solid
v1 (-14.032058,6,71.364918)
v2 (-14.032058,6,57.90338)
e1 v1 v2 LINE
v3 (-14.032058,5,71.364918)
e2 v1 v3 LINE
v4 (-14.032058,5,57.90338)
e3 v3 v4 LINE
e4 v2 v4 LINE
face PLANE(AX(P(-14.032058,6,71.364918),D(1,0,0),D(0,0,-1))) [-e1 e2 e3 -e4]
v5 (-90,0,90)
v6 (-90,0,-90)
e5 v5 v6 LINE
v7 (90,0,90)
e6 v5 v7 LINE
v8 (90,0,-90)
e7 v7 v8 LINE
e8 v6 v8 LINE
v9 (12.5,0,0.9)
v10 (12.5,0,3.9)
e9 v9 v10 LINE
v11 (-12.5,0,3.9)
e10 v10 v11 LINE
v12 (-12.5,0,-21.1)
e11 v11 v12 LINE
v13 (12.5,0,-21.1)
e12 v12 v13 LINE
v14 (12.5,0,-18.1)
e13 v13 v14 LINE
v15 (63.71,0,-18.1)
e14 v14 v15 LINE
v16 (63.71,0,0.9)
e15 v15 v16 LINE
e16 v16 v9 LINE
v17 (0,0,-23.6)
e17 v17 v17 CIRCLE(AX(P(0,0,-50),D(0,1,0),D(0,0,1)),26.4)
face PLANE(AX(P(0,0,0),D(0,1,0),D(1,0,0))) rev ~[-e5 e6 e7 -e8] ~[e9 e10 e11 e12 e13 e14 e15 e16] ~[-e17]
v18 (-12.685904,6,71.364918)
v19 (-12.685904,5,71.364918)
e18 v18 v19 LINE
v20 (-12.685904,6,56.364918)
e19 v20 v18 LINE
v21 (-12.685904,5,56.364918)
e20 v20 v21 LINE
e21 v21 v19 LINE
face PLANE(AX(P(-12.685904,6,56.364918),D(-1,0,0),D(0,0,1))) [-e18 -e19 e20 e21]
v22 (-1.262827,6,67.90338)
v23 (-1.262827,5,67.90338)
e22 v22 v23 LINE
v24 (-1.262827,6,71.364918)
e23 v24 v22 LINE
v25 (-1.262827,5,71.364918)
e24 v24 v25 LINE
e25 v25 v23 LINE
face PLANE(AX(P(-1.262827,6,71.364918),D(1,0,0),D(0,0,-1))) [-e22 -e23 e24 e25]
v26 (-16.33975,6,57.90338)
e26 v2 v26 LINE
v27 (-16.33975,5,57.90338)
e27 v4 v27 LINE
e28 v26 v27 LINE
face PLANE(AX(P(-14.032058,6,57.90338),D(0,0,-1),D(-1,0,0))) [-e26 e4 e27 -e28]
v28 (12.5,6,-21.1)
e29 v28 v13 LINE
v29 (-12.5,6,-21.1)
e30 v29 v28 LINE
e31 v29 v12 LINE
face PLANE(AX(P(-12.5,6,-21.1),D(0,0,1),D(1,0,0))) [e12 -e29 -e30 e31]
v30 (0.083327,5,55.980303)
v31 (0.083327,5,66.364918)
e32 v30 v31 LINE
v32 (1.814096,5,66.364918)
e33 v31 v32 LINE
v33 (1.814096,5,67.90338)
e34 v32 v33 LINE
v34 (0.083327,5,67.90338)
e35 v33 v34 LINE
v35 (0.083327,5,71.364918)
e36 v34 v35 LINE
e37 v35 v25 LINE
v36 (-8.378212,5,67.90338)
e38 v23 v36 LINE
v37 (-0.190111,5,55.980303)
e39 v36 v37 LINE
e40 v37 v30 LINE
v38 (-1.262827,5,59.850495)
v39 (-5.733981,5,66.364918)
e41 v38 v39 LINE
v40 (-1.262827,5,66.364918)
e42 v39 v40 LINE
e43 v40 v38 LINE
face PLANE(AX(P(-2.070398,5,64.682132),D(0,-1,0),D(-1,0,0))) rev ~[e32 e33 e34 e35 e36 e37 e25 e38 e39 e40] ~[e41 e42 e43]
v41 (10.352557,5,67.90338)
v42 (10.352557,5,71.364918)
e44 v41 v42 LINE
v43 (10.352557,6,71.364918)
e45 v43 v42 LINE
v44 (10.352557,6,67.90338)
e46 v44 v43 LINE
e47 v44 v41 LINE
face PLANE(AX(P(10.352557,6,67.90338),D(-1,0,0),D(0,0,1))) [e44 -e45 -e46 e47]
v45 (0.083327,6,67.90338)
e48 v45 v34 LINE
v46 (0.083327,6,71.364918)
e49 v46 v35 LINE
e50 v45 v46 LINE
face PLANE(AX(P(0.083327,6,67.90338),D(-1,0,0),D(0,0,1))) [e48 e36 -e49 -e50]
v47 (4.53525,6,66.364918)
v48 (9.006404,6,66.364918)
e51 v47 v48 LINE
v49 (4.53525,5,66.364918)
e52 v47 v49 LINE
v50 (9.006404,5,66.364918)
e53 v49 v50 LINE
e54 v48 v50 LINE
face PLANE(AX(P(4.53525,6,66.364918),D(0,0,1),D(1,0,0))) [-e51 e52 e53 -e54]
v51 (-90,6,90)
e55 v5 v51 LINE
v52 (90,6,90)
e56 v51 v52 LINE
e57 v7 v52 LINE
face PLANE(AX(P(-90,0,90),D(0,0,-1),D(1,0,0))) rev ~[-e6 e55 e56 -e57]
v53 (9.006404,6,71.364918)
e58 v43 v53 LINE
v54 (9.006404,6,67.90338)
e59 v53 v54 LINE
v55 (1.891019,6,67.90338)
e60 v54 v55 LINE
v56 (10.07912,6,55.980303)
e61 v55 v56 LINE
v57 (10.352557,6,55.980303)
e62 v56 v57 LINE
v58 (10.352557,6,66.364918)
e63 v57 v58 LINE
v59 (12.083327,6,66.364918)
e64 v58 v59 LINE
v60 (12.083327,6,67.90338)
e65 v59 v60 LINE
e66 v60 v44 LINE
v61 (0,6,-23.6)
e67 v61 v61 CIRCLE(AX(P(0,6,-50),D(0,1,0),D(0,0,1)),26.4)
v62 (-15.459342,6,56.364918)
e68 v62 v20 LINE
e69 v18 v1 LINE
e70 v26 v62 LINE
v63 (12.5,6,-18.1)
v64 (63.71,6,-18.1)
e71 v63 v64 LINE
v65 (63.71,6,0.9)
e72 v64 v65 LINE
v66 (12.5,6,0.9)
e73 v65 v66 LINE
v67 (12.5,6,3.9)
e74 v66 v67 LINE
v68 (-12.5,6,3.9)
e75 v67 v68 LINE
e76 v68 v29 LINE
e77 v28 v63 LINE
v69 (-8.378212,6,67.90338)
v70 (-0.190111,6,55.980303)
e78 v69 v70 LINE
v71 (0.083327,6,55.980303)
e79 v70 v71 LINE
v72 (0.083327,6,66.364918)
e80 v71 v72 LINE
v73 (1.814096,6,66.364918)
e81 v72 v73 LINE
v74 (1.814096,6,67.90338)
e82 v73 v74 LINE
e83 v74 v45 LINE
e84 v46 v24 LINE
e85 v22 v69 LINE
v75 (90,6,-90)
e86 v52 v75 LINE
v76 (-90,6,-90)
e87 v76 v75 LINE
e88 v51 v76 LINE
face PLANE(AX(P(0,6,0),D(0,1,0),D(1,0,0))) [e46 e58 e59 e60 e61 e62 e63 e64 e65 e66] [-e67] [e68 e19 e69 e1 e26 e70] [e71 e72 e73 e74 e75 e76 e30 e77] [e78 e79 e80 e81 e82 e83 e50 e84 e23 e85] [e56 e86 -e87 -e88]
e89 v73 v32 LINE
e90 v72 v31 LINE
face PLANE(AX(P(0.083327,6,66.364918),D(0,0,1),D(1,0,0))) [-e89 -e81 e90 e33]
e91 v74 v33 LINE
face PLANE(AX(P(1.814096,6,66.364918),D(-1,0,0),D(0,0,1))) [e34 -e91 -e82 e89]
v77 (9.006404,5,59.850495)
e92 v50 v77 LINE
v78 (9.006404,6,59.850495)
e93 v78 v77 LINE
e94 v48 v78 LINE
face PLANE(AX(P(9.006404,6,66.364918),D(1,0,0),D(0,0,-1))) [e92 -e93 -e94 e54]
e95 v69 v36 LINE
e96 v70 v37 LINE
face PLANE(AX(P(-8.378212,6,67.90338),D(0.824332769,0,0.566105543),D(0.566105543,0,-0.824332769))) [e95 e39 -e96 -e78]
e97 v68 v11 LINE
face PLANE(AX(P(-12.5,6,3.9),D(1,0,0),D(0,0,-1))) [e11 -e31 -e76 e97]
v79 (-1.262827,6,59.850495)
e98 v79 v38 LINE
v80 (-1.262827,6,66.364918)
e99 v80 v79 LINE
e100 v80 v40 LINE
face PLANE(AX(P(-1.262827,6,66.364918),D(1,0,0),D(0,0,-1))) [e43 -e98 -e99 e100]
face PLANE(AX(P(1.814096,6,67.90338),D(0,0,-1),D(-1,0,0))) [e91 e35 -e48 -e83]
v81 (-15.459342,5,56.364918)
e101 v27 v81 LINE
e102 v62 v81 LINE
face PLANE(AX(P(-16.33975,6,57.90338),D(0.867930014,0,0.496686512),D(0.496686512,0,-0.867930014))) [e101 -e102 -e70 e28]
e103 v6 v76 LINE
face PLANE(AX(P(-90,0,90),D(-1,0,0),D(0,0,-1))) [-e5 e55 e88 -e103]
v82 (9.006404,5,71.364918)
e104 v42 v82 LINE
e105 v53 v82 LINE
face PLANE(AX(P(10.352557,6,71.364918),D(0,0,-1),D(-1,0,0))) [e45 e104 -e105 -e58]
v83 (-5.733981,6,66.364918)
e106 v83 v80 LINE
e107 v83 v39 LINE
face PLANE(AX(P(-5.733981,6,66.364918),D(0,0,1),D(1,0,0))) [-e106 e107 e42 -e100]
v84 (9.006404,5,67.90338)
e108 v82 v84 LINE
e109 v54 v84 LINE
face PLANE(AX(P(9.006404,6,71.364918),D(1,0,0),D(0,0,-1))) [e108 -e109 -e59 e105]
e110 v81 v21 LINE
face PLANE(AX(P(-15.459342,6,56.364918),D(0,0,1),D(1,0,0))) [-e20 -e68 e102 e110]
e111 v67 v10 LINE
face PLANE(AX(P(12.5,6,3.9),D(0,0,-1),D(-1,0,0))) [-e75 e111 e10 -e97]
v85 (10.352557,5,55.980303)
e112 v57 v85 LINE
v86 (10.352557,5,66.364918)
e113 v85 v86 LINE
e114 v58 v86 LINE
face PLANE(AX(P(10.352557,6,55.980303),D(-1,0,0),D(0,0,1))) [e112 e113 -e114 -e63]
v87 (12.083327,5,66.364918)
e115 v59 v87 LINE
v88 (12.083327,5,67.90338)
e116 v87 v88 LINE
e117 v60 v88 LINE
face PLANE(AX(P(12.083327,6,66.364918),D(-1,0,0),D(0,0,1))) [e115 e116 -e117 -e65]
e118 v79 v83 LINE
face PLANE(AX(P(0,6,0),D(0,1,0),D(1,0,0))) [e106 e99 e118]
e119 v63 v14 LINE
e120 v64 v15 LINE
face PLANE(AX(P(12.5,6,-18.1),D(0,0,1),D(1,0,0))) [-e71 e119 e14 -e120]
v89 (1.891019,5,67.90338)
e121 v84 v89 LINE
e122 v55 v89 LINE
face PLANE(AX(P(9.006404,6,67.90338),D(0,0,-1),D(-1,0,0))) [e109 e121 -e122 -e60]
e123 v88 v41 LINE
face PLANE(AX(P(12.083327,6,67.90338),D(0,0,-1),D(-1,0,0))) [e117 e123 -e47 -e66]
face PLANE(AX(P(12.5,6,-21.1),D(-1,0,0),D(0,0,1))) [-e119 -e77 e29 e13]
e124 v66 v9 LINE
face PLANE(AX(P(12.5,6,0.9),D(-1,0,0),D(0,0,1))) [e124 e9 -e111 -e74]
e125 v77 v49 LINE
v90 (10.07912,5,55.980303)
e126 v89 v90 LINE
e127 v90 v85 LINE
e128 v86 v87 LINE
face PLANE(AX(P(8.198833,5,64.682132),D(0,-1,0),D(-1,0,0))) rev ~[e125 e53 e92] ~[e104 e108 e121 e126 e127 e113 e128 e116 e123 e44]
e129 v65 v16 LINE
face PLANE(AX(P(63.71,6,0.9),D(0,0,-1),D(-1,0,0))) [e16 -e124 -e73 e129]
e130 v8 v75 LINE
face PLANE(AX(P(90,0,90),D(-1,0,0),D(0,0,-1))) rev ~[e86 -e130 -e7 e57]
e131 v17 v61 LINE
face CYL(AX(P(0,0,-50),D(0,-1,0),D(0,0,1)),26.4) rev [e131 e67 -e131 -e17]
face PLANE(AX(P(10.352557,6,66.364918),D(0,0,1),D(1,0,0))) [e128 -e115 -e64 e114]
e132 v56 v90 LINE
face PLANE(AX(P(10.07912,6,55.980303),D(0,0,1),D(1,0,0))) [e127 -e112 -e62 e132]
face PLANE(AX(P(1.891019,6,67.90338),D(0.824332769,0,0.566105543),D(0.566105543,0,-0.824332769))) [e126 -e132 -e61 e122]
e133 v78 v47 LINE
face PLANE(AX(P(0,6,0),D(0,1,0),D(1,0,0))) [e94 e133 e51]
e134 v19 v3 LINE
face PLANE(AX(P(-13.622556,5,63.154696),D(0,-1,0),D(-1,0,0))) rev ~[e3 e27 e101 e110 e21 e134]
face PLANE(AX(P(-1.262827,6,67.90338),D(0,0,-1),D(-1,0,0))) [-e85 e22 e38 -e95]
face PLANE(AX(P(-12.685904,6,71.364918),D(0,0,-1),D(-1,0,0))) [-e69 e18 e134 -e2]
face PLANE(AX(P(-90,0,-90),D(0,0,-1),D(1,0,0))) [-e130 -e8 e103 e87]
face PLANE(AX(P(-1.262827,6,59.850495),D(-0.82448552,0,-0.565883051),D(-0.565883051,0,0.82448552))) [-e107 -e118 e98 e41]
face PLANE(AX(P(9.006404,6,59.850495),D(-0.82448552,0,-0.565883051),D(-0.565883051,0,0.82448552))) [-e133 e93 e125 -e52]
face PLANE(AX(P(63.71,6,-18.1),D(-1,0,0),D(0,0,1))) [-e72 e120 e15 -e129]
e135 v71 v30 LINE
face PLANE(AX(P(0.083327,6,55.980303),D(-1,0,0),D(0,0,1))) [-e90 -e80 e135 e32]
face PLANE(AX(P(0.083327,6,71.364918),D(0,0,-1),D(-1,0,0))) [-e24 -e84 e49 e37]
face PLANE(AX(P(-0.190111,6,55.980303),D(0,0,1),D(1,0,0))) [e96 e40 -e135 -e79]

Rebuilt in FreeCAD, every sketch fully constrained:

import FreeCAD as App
import Part
import Sketcher
Q = App.Units.Quantity


def add_polygon(sketch, points):
    """Adds a closed chain of lines whose ends are joined by coincident constraints."""
    first, n = sketch.GeometryCount, len(points)
    for a, b in zip(points, points[1:] + points[:1]):
        sketch.addGeometry(Part.LineSegment(App.Vector(*a, 0), App.Vector(*b, 0)), False)
    for i in range(n):
        sketch.addConstraint(Sketcher.Constraint("Coincident", first + i, 2, first + (i + 1) % n, 1))

doc = App.newDocument("Part")
body = doc.addObject("PartDesign::Body", "Body")

sketch1 = body.newObject("Sketcher::SketchObject", "Sketch")
sketch1.AttachmentSupport = (doc.getObject("XZ_Plane"), [""])
sketch1.MapMode = "FlatFace"
add_polygon(sketch1, [(-90, -90), (-90, 90), (90, 90), (90, -90)])
sketch1.addGeometry(Part.Circle(App.Vector(0, -50, 0), App.Vector(0, 0, 1), 26.4), False)
sketch1.addConstraint(Sketcher.Constraint("Vertical", 0))
sketch1.addConstraint(Sketcher.Constraint("Horizontal", 1))
sketch1.addConstraint(Sketcher.Constraint("Vertical", 2))
sketch1.addConstraint(Sketcher.Constraint("Horizontal", 3))
sketch1.addConstraint(Sketcher.Constraint("Symmetric", 0, 2, 2, 2, -1, 1))
sketch1.addConstraint(Sketcher.Constraint("PointOnObject", 4, 3, -2))
sketch1.addConstraint(Sketcher.Constraint("Equal", 3, 0))
sketch1.addConstraint(Sketcher.Constraint("Diameter", 4, Q("52.8 mm")))
sketch1.addConstraint(Sketcher.Constraint("DistanceX", 1, 1, 1, 2, Q("180 mm")))
sketch1.addConstraint(Sketcher.Constraint("DistanceY", 4, 3, -1, 1, Q("50 mm")))
pad1 = body.newObject("PartDesign::Pad", "Pad")
pad1.Profile = sketch1
pad1.Length = 6
pad1.Reversed = True

sketch2 = body.newObject("Sketcher::SketchObject", "Sketch001")
sketch2.AttachmentSupport = (doc.getObject("XZ_Plane"), [""])
sketch2.MapMode = "FlatFace"
sketch2.AttachmentOffset = App.Placement(App.Vector(0, 0, -6), App.Rotation())
add_polygon(sketch2, [(12.5, -21.1), (-12.5, -21.1), (-12.5, 3.9), (12.5, 3.9), (12.5, 0.9), (63.71, 0.9), (63.71, -18.1), (12.5, -18.1)])
sketch2.addConstraint(Sketcher.Constraint("Horizontal", 0))
sketch2.addConstraint(Sketcher.Constraint("Vertical", 1))
sketch2.addConstraint(Sketcher.Constraint("Horizontal", 2))
sketch2.addConstraint(Sketcher.Constraint("Vertical", 3))
sketch2.addConstraint(Sketcher.Constraint("Horizontal", 4))
sketch2.addConstraint(Sketcher.Constraint("Vertical", 5))
sketch2.addConstraint(Sketcher.Constraint("Horizontal", 6))
sketch2.addConstraint(Sketcher.Constraint("Vertical", 7))
sketch2.addConstraint(Sketcher.Constraint("Vertical", 3, 2, 6, 2))
sketch2.addConstraint(Sketcher.Constraint("Equal", 2, 1))
sketch2.addConstraint(Sketcher.Constraint("Equal", 3, 7))
sketch2.addConstraint(Sketcher.Constraint("DistanceX", 0, 2, 0, 1, Q("25 mm")))
sketch2.addConstraint(Sketcher.Constraint("DistanceY", 3, 2, 3, 1, Q("3 mm")))
sketch2.addConstraint(Sketcher.Constraint("DistanceX", 4, 1, 4, 2, Q("51.21 mm")))
sketch2.addConstraint(Sketcher.Constraint("DistanceX", 0, 2, -1, 1, Q("12.5 mm")))
sketch2.addConstraint(Sketcher.Constraint("DistanceY", 0, 2, -1, 1, Q("21.1 mm")))
pocket1 = body.newObject("PartDesign::Pocket", "Pocket")
pocket1.Profile = sketch2
pocket1.Length = 10
pocket1.Reversed = True

sketch3 = body.newObject("Sketcher::SketchObject", "Sketch002")
sketch3.AttachmentSupport = (doc.getObject("XZ_Plane"), [""])
sketch3.MapMode = "FlatFace"
sketch3.AttachmentOffset = App.Placement(App.Vector(0, 0, -6), App.Rotation())
add_polygon(sketch3, [(-12.685904, 56.364918), (-15.459342, 56.364918), (-16.33975, 57.90338), (-14.032058, 57.90338), (-14.032058, 71.364918), (-12.685904, 71.364918)])
add_polygon(sketch3, [(0.083327, 55.980303), (-0.190111, 55.980303), (-8.378212, 67.90338), (-1.262827, 67.90338), (-1.262827, 71.364918), (0.083327, 71.364918), (0.083327, 67.90338), (1.814096, 67.90338), (1.814096, 66.364918), (0.083327, 66.364918)])
add_polygon(sketch3, [(-1.262827, 66.364918), (-5.733981, 66.364918), (-1.262827, 59.850495)])
add_polygon(sketch3, [(10.352557, 55.980303), (10.07912, 55.980303), (1.891019, 67.90338), (9.006404, 67.90338), (9.006404, 71.364918), (10.352557, 71.364918), (10.352557, 67.90338), (12.083327, 67.90338), (12.083327, 66.364918), (10.352557, 66.364918)])
add_polygon(sketch3, [(9.006404, 66.364918), (4.53525, 66.364918), (9.006404, 59.850495)])
sketch3.addConstraint(Sketcher.Constraint("Horizontal", 0))
sketch3.addConstraint(Sketcher.Constraint("Horizontal", 2))
sketch3.addConstraint(Sketcher.Constraint("Vertical", 3))
sketch3.addConstraint(Sketcher.Constraint("Horizontal", 4))
sketch3.addConstraint(Sketcher.Constraint("Vertical", 5))
sketch3.addConstraint(Sketcher.Constraint("Horizontal", 6))
sketch3.addConstraint(Sketcher.Constraint("Horizontal", 8))
sketch3.addConstraint(Sketcher.Constraint("Vertical", 9))
sketch3.addConstraint(Sketcher.Constraint("Horizontal", 10))
sketch3.addConstraint(Sketcher.Constraint("Vertical", 11))
sketch3.addConstraint(Sketcher.Constraint("Horizontal", 12))
sketch3.addConstraint(Sketcher.Constraint("Vertical", 13))
sketch3.addConstraint(Sketcher.Constraint("Horizontal", 14))
sketch3.addConstraint(Sketcher.Constraint("Vertical", 15))
sketch3.addConstraint(Sketcher.Constraint("Horizontal", 16))
sketch3.addConstraint(Sketcher.Constraint("Vertical", 18))
sketch3.addConstraint(Sketcher.Constraint("Horizontal", 19))
sketch3.addConstraint(Sketcher.Constraint("Horizontal", 21))
sketch3.addConstraint(Sketcher.Constraint("Vertical", 22))
sketch3.addConstraint(Sketcher.Constraint("Horizontal", 23))
sketch3.addConstraint(Sketcher.Constraint("Vertical", 24))
sketch3.addConstraint(Sketcher.Constraint("Horizontal", 25))
sketch3.addConstraint(Sketcher.Constraint("Vertical", 26))
sketch3.addConstraint(Sketcher.Constraint("Horizontal", 27))
sketch3.addConstraint(Sketcher.Constraint("Vertical", 28))
sketch3.addConstraint(Sketcher.Constraint("Horizontal", 29))
sketch3.addConstraint(Sketcher.Constraint("Vertical", 31))
sketch3.addConstraint(Sketcher.Constraint("Parallel", 7, 20))
sketch3.addConstraint(Sketcher.Constraint("Parallel", 17, 30))
sketch3.addConstraint(Sketcher.Constraint("Horizontal", 4, 2, 9, 2))
sketch3.addConstraint(Sketcher.Constraint("Horizontal", 8, 2, 11, 2))
sketch3.addConstraint(Sketcher.Constraint("Horizontal", 14, 2, 16, 2))
sketch3.addConstraint(Sketcher.Constraint("Horizontal", 15, 2, 19, 2))
sketch3.addConstraint(Sketcher.Constraint("Horizontal", 12, 2, 20, 2))
sketch3.addConstraint(Sketcher.Constraint("Horizontal", 10, 2, 22, 2))
sketch3.addConstraint(Sketcher.Constraint("Horizontal", 21, 2, 24, 2))
sketch3.addConstraint(Sketcher.Constraint("Horizontal", 18, 2, 26, 2))
sketch3.addConstraint(Sketcher.Constraint("Horizontal", 27, 2, 29, 2))
sketch3.addConstraint(Sketcher.Constraint("Horizontal", 17, 2, 30, 2))
sketch3.addConstraint(Sketcher.Constraint("Vertical", 11, 2, 14, 2))
sketch3.addConstraint(Sketcher.Constraint("Vertical", 9, 2, 17, 2))
sketch3.addConstraint(Sketcher.Constraint("Vertical", 24, 2, 27, 2))
sketch3.addConstraint(Sketcher.Constraint("Vertical", 22, 2, 30, 2))
sketch3.addConstraint(Sketcher.Constraint("Equal", 4, 10))
sketch3.addConstraint(Sketcher.Constraint("Equal", 6, 19))
sketch3.addConstraint(Sketcher.Constraint("Equal", 8, 21))
sketch3.addConstraint(Sketcher.Constraint("Equal", 14, 25))
sketch3.addConstraint(Sketcher.Constraint("DistanceY", 5, 2, 5, 1, Q("15 mm")))
sketch3.addConstraint(Sketcher.Constraint("DistanceY", 2, 2, 7, 2, Q("10 mm")))
sketch3.addConstraint(Sketcher.Constraint("DistanceY", 13, 2, 10, 2, Q("5 mm")))
sketch3.addConstraint(Sketcher.Constraint("DistanceX", 12, 1, 12, 2, Q("1.730769 mm")))
sketch3.addConstraint(Sketcher.Constraint("DistanceY", 3, 1, 3, 2, Q("13.461538 mm")))
sketch3.addConstraint(Sketcher.Constraint("DistanceX", 0, 2, 0, 1, Q("2.773438 mm")))
sketch3.addConstraint(Sketcher.Constraint("DistanceX", 2, 1, 2, 2, Q("2.307692 mm")))
sketch3.addConstraint(Sketcher.Constraint("DistanceX", 4, 1, 4, 2, Q("1.346154 mm")))
sketch3.addConstraint(Sketcher.Constraint("DistanceX", 6, 2, 6, 1, Q("0.273438 mm")))
sketch3.addConstraint(Sketcher.Constraint("DistanceX", 8, 1, 8, 2, Q("7.115385 mm")))
sketch3.addConstraint(Sketcher.Constraint("DistanceX", 16, 2, 16, 1, Q("4.471154 mm")))
sketch3.addConstraint(Sketcher.Constraint("DistanceY", 15, 2, 15, 1, Q("10.384615 mm")))
sketch3.addConstraint(Sketcher.Constraint("DistanceY", 18, 1, 18, 2, Q("6.514423 mm")))
sketch3.addConstraint(Sketcher.Constraint("DistanceX", 0, 2, -1, 1, Q("15.459342 mm")))
sketch3.addConstraint(Sketcher.Constraint("DistanceY", -1, 1, 1, 2, Q("57.90338 mm")))
sketch3.addConstraint(Sketcher.Constraint("DistanceX", 6, 2, -1, 1, Q("0.190111 mm")))
sketch3.addConstraint(Sketcher.Constraint("DistanceX", -1, 1, 19, 2, Q("10.07912 mm")))
pocket2 = body.newObject("PartDesign::Pocket", "Pocket001")
pocket2.Profile = sketch3
pocket2.Length = 1
pocket2.Reversed = True

doc.recompute()
